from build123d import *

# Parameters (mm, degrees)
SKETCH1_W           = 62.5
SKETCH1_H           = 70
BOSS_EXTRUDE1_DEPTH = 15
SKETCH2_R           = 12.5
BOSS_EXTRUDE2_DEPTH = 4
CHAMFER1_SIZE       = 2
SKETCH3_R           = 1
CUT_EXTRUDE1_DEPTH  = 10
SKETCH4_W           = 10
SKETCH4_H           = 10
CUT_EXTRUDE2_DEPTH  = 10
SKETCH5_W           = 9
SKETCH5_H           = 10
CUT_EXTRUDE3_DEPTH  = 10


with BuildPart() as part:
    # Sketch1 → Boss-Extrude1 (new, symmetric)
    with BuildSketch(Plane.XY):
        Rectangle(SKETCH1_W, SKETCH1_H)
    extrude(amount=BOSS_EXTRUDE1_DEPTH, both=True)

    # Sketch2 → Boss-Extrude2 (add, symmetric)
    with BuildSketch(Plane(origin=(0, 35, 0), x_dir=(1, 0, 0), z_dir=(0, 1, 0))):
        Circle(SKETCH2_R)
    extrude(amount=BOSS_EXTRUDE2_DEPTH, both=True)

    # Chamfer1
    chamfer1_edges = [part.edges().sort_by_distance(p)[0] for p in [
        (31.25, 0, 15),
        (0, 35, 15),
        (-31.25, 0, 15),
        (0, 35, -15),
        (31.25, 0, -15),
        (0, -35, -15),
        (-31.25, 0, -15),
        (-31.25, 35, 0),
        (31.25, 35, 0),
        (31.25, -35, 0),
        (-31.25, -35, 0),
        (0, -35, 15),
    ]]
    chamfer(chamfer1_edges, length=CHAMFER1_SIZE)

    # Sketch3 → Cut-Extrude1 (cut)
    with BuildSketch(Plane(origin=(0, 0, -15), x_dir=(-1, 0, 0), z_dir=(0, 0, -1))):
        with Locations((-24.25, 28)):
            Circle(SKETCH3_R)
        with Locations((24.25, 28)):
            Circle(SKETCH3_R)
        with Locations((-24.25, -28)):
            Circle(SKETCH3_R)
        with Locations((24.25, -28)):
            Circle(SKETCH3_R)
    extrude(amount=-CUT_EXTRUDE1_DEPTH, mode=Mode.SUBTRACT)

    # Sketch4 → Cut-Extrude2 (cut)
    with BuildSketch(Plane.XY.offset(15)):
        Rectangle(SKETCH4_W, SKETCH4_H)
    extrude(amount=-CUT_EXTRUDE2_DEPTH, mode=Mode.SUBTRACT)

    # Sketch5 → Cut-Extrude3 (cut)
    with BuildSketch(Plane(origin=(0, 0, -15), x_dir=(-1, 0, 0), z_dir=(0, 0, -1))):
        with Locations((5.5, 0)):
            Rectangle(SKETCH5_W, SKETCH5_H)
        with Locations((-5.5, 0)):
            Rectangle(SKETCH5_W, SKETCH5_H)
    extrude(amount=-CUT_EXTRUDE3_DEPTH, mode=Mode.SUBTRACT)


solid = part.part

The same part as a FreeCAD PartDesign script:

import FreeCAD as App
import Part
import Sketcher
Q = App.Units.Quantity


def edges_at(feature, points):
    """Names of the edges that pass closest to the given points."""
    edges = feature.Shape.Edges
    near = lambda p: min(range(len(edges)), key=lambda i: edges[i].distToShape(Part.Vertex(*p))[0])
    return sorted({f"Edge{near(p) + 1}" for p in points})

doc = App.newDocument("Part")
body = doc.addObject("PartDesign::Body", "Body")

sketch1 = doc.addObject("Sketcher::SketchObject", "Sketch")
body.addObject(sketch1)
sketch1.AttachmentSupport = (doc.XY_Plane, [""])
sketch1.MapMode = "FlatFace"
sketch1.addGeometry(Part.LineSegment(App.Vector(-31, 35, 0), App.Vector(-31, -35, 0)), False)
sketch1.addGeometry(Part.LineSegment(App.Vector(-31, -35, 0), App.Vector(31, -35, 0)), False)
sketch1.addGeometry(Part.LineSegment(App.Vector(31, -35, 0), App.Vector(31, 35, 0)), False)
sketch1.addGeometry(Part.LineSegment(App.Vector(31, 35, 0), App.Vector(-31, 35, 0)), False)
sketch1.addConstraint(Sketcher.Constraint("Coincident", 0, 2, 1, 1))
sketch1.addConstraint(Sketcher.Constraint("Coincident", 1, 2, 2, 1))
sketch1.addConstraint(Sketcher.Constraint("Coincident", 2, 2, 3, 1))
sketch1.addConstraint(Sketcher.Constraint("Coincident", 3, 2, 0, 1))
sketch1.addConstraint(Sketcher.Constraint("Vertical", 0))
sketch1.addConstraint(Sketcher.Constraint("Horizontal", 1))
sketch1.addConstraint(Sketcher.Constraint("Vertical", 2))
sketch1.addConstraint(Sketcher.Constraint("Horizontal", 3))
sketch1.addConstraint(Sketcher.Constraint("Symmetric", 0, 2, 2, 2, -1, 1))
sketch1.addConstraint(Sketcher.Constraint("DistanceY", 0, 2, 0, 1, Q("70 mm")))
sketch1.addConstraint(Sketcher.Constraint("DistanceX", 1, 1, 1, 2, Q("62.5 mm")))
pad1 = doc.addObject("PartDesign::Pad", "Pad")
body.addObject(pad1)
pad1.Profile = sketch1
pad1.Length = 30
pad1.Midplane = True

sketch2 = doc.addObject("Sketcher::SketchObject", "Sketch001")
body.addObject(sketch2)
sketch2.AttachmentSupport = (doc.XZ_Plane, [""])
sketch2.MapMode = "FlatFace"
sketch2.AttachmentOffset = App.Placement(App.Vector(0, 0, -35), App.Rotation())
sketch2.addGeometry(Part.Circle(App.Vector(0, 0, 0), App.Vector(0, 0, 1), 12), False)
sketch2.addConstraint(Sketcher.Constraint("Coincident", 0, 3, -1, 1))
sketch2.addConstraint(Sketcher.Constraint("Diameter", 0, Q("25 mm")))
pad2 = doc.addObject("PartDesign::Pad", "Pad001")
body.addObject(pad2)
pad2.Profile = sketch2
pad2.Length = 8
pad2.Midplane = True
doc.recompute()

chamfer = doc.addObject("PartDesign::Chamfer", "Chamfer")
body.addObject(chamfer)
chamfer.Base = (pad2, edges_at(pad2, [
    (31.25, 0, 15),
    (0, 35, 15),
    (-31.25, 0, 15),
    (0, 35, -15),
    (31.25, 0, -15),
    (0, -35, -15),
    (-31.25, 0, -15),
    (-31.25, 35, 0),
    (31.25, 35, 0),
    (31.25, -35, 0),
    (-31.25, -35, 0),
    (0, -35, 15),
]))
chamfer.Size = 2

sketch3 = doc.addObject("Sketcher::SketchObject", "Sketch002")
body.addObject(sketch3)
sketch3.AttachmentSupport = (doc.XY_Plane, [""])
sketch3.MapMode = "FlatFace"
sketch3.AttachmentOffset = App.Placement(App.Vector(0, 0, -15), App.Rotation())
sketch3.addGeometry(Part.Circle(App.Vector(24.2, 28, 0), App.Vector(0, 0, 1), 1), False)
sketch3.addGeometry(Part.Circle(App.Vector(-24.2, 28, 0), App.Vector(0, 0, 1), 1), False)
sketch3.addGeometry(Part.Circle(App.Vector(24.2, -28, 0), App.Vector(0, 0, 1), 1), False)
sketch3.addGeometry(Part.Circle(App.Vector(-24.2, -28, 0), App.Vector(0, 0, 1), 1), False)
sketch3.addConstraint(Sketcher.Constraint("Equal", 0, 1))
sketch3.addConstraint(Sketcher.Constraint("Equal", 1, 2))
sketch3.addConstraint(Sketcher.Constraint("Equal", 2, 3))
sketch3.addConstraint(Sketcher.Constraint("Symmetric", 1, 3, 2, 3, -1, 1))
sketch3.addConstraint(Sketcher.Constraint("Symmetric", 0, 3, 3, 3, -1, 1))
sketch3.addConstraint(Sketcher.Constraint("Symmetric", 0, 3, 1, 3, -2))
sketch3.addConstraint(Sketcher.Constraint("Diameter", 0, Q("2 mm")))
sketch3.addConstraint(Sketcher.Constraint("DistanceY", -1, 1, 0, 3, Q("28 mm")))
sketch3.addConstraint(Sketcher.Constraint("DistanceX", 1, 3, 0, 3, Q("48.5 mm")))
pocket1 = doc.addObject("PartDesign::Pocket", "Pocket")
body.addObject(pocket1)
pocket1.Profile = sketch3
pocket1.Length = 10
pocket1.Reversed = True

sketch4 = doc.addObject("Sketcher::SketchObject", "Sketch003")
body.addObject(sketch4)
sketch4.AttachmentSupport = (doc.XY_Plane, [""])
sketch4.MapMode = "FlatFace"
sketch4.AttachmentOffset = App.Placement(App.Vector(0, 0, 15), App.Rotation())
sketch4.addGeometry(Part.LineSegment(App.Vector(-5, 5, 0), App.Vector(-5, -5, 0)), False)
sketch4.addGeometry(Part.LineSegment(App.Vector(-5, -5, 0), App.Vector(5, -5, 0)), False)
sketch4.addGeometry(Part.LineSegment(App.Vector(5, -5, 0), App.Vector(5, 5, 0)), False)
sketch4.addGeometry(Part.LineSegment(App.Vector(5, 5, 0), App.Vector(-5, 5, 0)), False)
sketch4.addConstraint(Sketcher.Constraint("Coincident", 0, 2, 1, 1))
sketch4.addConstraint(Sketcher.Constraint("Coincident", 1, 2, 2, 1))
sketch4.addConstraint(Sketcher.Constraint("Coincident", 2, 2, 3, 1))
sketch4.addConstraint(Sketcher.Constraint("Coincident", 3, 2, 0, 1))
sketch4.addConstraint(Sketcher.Constraint("Vertical", 0))
sketch4.addConstraint(Sketcher.Constraint("Horizontal", 1))
sketch4.addConstraint(Sketcher.Constraint("Vertical", 2))
sketch4.addConstraint(Sketcher.Constraint("Horizontal", 3))
sketch4.addConstraint(Sketcher.Constraint("Symmetric", 0, 2, 2, 2, -1, 1))
sketch4.addConstraint(Sketcher.Constraint("Equal", 3, 0))
sketch4.addConstraint(Sketcher.Constraint("DistanceX", 1, 1, 1, 2, Q("10 mm")))
pocket2 = doc.addObject("PartDesign::Pocket", "Pocket001")
body.addObject(pocket2)
pocket2.Profile = sketch4
pocket2.Length = 10

sketch5 = doc.addObject("Sketcher::SketchObject", "Sketch004")
body.addObject(sketch5)
sketch5.AttachmentSupport = (doc.XY_Plane, [""])
sketch5.MapMode = "FlatFace"
sketch5.AttachmentOffset = App.Placement(App.Vector(0, 0, -15), App.Rotation())
sketch5.addGeometry(Part.LineSegment(App.Vector(-1, 5, 0), App.Vector(-1, -5, 0)), False)
sketch5.addGeometry(Part.LineSegment(App.Vector(-1, -5, 0), App.Vector(-10, -5, 0)), False)
sketch5.addGeometry(Part.LineSegment(App.Vector(-10, -5, 0), App.Vector(-10, 5, 0)), False)
sketch5.addGeometry(Part.LineSegment(App.Vector(-10, 5, 0), App.Vector(-1, 5, 0)), False)
sketch5.addGeometry(Part.LineSegment(App.Vector(10, 5, 0), App.Vector(10, -5, 0)), False)
sketch5.addGeometry(Part.LineSegment(App.Vector(10, -5, 0), App.Vector(1, -5, 0)), False)
sketch5.addGeometry(Part.LineSegment(App.Vector(1, -5, 0), App.Vector(1, 5, 0)), False)
sketch5.addGeometry(Part.LineSegment(App.Vector(1, 5, 0), App.Vector(10, 5, 0)), False)
sketch5.addConstraint(Sketcher.Constraint("Coincident", 0, 2, 1, 1))
sketch5.addConstraint(Sketcher.Constraint("Coincident", 1, 2, 2, 1))
sketch5.addConstraint(Sketcher.Constraint("Coincident", 2, 2, 3, 1))
sketch5.addConstraint(Sketcher.Constraint("Coincident", 3, 2, 0, 1))
sketch5.addConstraint(Sketcher.Constraint("Coincident", 4, 2, 5, 1))
sketch5.addConstraint(Sketcher.Constraint("Coincident", 5, 2, 6, 1))
sketch5.addConstraint(Sketcher.Constraint("Coincident", 6, 2, 7, 1))
sketch5.addConstraint(Sketcher.Constraint("Coincident", 7, 2, 4, 1))
sketch5.addConstraint(Sketcher.Constraint("Vertical", 0))
sketch5.addConstraint(Sketcher.Constraint("Horizontal", 1))
sketch5.addConstraint(Sketcher.Constraint("Vertical", 2))
sketch5.addConstraint(Sketcher.Constraint("Horizontal", 3))
sketch5.addConstraint(Sketcher.Constraint("Vertical", 4))
sketch5.addConstraint(Sketcher.Constraint("Horizontal", 5))
sketch5.addConstraint(Sketcher.Constraint("Vertical", 6))
sketch5.addConstraint(Sketcher.Constraint("Horizontal", 7))
sketch5.addConstraint(Sketcher.Constraint("Symmetric", 2, 2, 4, 2, -1, 1))
sketch5.addConstraint(Sketcher.Constraint("Symmetric", 0, 2, 6, 2, -1, 1))
sketch5.addConstraint(Sketcher.Constraint("Horizontal", 1, 2, 4, 2))
sketch5.addConstraint(Sketcher.Constraint("DistanceX", 1, 2, 1, 1, Q("9 mm")))
sketch5.addConstraint(Sketcher.Constraint("DistanceY", 0, 2, 0, 1, Q("10 mm")))
sketch5.addConstraint(Sketcher.Constraint("DistanceX", 0, 2, -1, 1, Q("1 mm")))
pocket3 = doc.addObject("PartDesign::Pocket", "Pocket002")
body.addObject(pocket3)
pocket3.Profile = sketch5
pocket3.Length = 10
pocket3.Reversed = True

doc.recompute()
